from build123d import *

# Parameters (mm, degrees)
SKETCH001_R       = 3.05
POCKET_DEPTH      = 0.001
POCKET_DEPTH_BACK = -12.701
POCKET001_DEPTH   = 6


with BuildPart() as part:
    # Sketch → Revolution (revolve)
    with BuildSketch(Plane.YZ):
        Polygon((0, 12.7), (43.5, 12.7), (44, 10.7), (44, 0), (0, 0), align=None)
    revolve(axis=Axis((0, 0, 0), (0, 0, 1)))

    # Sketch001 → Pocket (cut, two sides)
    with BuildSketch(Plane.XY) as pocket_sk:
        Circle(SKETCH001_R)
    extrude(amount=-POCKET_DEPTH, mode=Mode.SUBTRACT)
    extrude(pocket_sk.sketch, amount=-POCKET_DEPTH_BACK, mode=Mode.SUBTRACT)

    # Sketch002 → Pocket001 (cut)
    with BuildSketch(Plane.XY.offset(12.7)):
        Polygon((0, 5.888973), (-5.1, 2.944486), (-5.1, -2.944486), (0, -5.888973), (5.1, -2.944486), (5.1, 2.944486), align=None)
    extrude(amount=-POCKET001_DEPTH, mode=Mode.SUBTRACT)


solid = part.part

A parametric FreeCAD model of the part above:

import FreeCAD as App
import Part
import Sketcher

V = App.Vector
Q = App.Units.Quantity

doc = App.newDocument("Part")
body = doc.addObject("PartDesign::Body", "Body")

sketch1 = doc.addObject("Sketcher::SketchObject", "Sketch")
body.addObject(sketch1)
sketch1.AttachmentSupport = (doc.YZ_Plane, [""])
sketch1.MapMode = "FlatFace"
sketch1.addGeometry(Part.LineSegment(V(43.5, 12.7, 0), V(0, 12.7, 0)), False)
sketch1.addGeometry(Part.LineSegment(V(0, 12.7, 0), V(0, 0, 0)), False)
sketch1.addGeometry(Part.LineSegment(V(0, 0, 0), V(44, 0, 0)), False)
sketch1.addGeometry(Part.LineSegment(V(44, 0, 0), V(44, 10.7, 0)), False)
sketch1.addGeometry(Part.LineSegment(V(44, 10.7, 0), V(43.5, 12.7, 0)), False)
sketch1.addConstraint(Sketcher.Constraint("Coincident", 0, 2, 1, 1))
sketch1.addConstraint(Sketcher.Constraint("Coincident", 1, 2, 2, 1))
sketch1.addConstraint(Sketcher.Constraint("Coincident", 2, 2, 3, 1))
sketch1.addConstraint(Sketcher.Constraint("Coincident", 3, 2, 4, 1))
sketch1.addConstraint(Sketcher.Constraint("Coincident", 4, 2, 0, 1))
sketch1.addConstraint(Sketcher.Constraint("Horizontal", 0))
sketch1.addConstraint(Sketcher.Constraint("Vertical", 1))
sketch1.addConstraint(Sketcher.Constraint("Horizontal", 2))
sketch1.addConstraint(Sketcher.Constraint("Vertical", 3))
sketch1.addConstraint(Sketcher.Constraint("Coincident", 1, 2, -1, 1))
sketch1.addConstraint(Sketcher.Constraint("DistanceX", 2, 1, 2, 2, Q("44 mm")))
sketch1.addConstraint(Sketcher.Constraint("DistanceX", 0, 2, 0, 1, Q("43.5 mm")))
sketch1.addConstraint(Sketcher.Constraint("DistanceY", 1, 2, 1, 1, Q("12.7 mm")))
sketch1.addConstraint(Sketcher.Constraint("DistanceY", 3, 1, 3, 2, Q("10.7 mm")))
revolution = doc.addObject("PartDesign::Revolution", "Revolution")
body.addObject(revolution)
revolution.Profile = sketch1
revolution.ReferenceAxis = (sketch1, ["V_Axis"])
revolution.Angle = 360

sketch2 = doc.addObject("Sketcher::SketchObject", "Sketch001")
body.addObject(sketch2)
sketch2.AttachmentSupport = (doc.XY_Plane, [""])
sketch2.MapMode = "FlatFace"
sketch2.addGeometry(Part.Circle(V(0, 0, 0), V(0, 0, 1), 3), False)
sketch2.addConstraint(Sketcher.Constraint("Coincident", 0, 3, -1, 1))
sketch2.addConstraint(Sketcher.Constraint("Diameter", 0, Q("6.1 mm")))
pocket1 = doc.addObject("PartDesign::Pocket", "Pocket")
body.addObject(pocket1)
pocket1.Profile = sketch2
pocket1.Type = "ThroughAll"
pocket1.Midplane = True

sketch3 = doc.addObject("Sketcher::SketchObject", "Sketch002")
body.addObject(sketch3)
sketch3.AttachmentSupport = (doc.XY_Plane, [""])
sketch3.MapMode = "FlatFace"
sketch3.AttachmentOffset = App.Placement(V(0, 0, 12.7), App.Rotation())
sketch3.addGeometry(Part.LineSegment(V(0, 6, 0), V(-5, 3, 0)), False)
sketch3.addGeometry(Part.LineSegment(V(-5, 3, 0), V(-5, -3, 0)), False)
sketch3.addGeometry(Part.LineSegment(V(-5, -3, 0), V(0, -6, 0)), False)
sketch3.addGeometry(Part.LineSegment(V(0, -6, 0), V(5, -3, 0)), False)
sketch3.addGeometry(Part.LineSegment(V(5, -3, 0), V(5, 3, 0)), False)
sketch3.addGeometry(Part.LineSegment(V(5, 3, 0), V(0, 6, 0)), False)
sketch3.addConstraint(Sketcher.Constraint("Coincident", 0, 2, 1, 1))
sketch3.addConstraint(Sketcher.Constraint("Coincident", 1, 2, 2, 1))
sketch3.addConstraint(Sketcher.Constraint("Coincident", 2, 2, 3, 1))
sketch3.addConstraint(Sketcher.Constraint("Coincident", 3, 2, 4, 1))
sketch3.addConstraint(Sketcher.Constraint("Coincident", 4, 2, 5, 1))
sketch3.addConstraint(Sketcher.Constraint("Coincident", 5, 2, 0, 1))
sketch3.addConstraint(Sketcher.Constraint("Vertical", 1))
sketch3.addConstraint(Sketcher.Constraint("Vertical", 4))
sketch3.addConstraint(Sketcher.Constraint("Symmetric", 0, 2, 3, 2, -1, 1))
sketch3.addConstraint(Sketcher.Constraint("Symmetric", 2, 2, 5, 2, -1, 1))
sketch3.addConstraint(Sketcher.Constraint("PointOnObject", 2, 2, -2))
sketch3.addConstraint(Sketcher.Constraint("Parallel", 2, 5))
sketch3.addConstraint(Sketcher.Constraint("Horizontal", 1, 2, 3, 2))
sketch3.addConstraint(Sketcher.Constraint("Angle", 0, Q("-149.999995 deg")))
sketch3.addConstraint(Sketcher.Constraint("DistanceX", 0, 2, -1, 1, Q("5.1 mm")))
sketch3.addConstraint(Sketcher.Constraint("DistanceY", 1, 2, 1, 1, Q("5.888972 mm")))
pocket2 = doc.addObject("PartDesign::Pocket", "Pocket001")
body.addObject(pocket2)
pocket2.Profile = sketch3
pocket2.Length = 6

doc.recompute()
